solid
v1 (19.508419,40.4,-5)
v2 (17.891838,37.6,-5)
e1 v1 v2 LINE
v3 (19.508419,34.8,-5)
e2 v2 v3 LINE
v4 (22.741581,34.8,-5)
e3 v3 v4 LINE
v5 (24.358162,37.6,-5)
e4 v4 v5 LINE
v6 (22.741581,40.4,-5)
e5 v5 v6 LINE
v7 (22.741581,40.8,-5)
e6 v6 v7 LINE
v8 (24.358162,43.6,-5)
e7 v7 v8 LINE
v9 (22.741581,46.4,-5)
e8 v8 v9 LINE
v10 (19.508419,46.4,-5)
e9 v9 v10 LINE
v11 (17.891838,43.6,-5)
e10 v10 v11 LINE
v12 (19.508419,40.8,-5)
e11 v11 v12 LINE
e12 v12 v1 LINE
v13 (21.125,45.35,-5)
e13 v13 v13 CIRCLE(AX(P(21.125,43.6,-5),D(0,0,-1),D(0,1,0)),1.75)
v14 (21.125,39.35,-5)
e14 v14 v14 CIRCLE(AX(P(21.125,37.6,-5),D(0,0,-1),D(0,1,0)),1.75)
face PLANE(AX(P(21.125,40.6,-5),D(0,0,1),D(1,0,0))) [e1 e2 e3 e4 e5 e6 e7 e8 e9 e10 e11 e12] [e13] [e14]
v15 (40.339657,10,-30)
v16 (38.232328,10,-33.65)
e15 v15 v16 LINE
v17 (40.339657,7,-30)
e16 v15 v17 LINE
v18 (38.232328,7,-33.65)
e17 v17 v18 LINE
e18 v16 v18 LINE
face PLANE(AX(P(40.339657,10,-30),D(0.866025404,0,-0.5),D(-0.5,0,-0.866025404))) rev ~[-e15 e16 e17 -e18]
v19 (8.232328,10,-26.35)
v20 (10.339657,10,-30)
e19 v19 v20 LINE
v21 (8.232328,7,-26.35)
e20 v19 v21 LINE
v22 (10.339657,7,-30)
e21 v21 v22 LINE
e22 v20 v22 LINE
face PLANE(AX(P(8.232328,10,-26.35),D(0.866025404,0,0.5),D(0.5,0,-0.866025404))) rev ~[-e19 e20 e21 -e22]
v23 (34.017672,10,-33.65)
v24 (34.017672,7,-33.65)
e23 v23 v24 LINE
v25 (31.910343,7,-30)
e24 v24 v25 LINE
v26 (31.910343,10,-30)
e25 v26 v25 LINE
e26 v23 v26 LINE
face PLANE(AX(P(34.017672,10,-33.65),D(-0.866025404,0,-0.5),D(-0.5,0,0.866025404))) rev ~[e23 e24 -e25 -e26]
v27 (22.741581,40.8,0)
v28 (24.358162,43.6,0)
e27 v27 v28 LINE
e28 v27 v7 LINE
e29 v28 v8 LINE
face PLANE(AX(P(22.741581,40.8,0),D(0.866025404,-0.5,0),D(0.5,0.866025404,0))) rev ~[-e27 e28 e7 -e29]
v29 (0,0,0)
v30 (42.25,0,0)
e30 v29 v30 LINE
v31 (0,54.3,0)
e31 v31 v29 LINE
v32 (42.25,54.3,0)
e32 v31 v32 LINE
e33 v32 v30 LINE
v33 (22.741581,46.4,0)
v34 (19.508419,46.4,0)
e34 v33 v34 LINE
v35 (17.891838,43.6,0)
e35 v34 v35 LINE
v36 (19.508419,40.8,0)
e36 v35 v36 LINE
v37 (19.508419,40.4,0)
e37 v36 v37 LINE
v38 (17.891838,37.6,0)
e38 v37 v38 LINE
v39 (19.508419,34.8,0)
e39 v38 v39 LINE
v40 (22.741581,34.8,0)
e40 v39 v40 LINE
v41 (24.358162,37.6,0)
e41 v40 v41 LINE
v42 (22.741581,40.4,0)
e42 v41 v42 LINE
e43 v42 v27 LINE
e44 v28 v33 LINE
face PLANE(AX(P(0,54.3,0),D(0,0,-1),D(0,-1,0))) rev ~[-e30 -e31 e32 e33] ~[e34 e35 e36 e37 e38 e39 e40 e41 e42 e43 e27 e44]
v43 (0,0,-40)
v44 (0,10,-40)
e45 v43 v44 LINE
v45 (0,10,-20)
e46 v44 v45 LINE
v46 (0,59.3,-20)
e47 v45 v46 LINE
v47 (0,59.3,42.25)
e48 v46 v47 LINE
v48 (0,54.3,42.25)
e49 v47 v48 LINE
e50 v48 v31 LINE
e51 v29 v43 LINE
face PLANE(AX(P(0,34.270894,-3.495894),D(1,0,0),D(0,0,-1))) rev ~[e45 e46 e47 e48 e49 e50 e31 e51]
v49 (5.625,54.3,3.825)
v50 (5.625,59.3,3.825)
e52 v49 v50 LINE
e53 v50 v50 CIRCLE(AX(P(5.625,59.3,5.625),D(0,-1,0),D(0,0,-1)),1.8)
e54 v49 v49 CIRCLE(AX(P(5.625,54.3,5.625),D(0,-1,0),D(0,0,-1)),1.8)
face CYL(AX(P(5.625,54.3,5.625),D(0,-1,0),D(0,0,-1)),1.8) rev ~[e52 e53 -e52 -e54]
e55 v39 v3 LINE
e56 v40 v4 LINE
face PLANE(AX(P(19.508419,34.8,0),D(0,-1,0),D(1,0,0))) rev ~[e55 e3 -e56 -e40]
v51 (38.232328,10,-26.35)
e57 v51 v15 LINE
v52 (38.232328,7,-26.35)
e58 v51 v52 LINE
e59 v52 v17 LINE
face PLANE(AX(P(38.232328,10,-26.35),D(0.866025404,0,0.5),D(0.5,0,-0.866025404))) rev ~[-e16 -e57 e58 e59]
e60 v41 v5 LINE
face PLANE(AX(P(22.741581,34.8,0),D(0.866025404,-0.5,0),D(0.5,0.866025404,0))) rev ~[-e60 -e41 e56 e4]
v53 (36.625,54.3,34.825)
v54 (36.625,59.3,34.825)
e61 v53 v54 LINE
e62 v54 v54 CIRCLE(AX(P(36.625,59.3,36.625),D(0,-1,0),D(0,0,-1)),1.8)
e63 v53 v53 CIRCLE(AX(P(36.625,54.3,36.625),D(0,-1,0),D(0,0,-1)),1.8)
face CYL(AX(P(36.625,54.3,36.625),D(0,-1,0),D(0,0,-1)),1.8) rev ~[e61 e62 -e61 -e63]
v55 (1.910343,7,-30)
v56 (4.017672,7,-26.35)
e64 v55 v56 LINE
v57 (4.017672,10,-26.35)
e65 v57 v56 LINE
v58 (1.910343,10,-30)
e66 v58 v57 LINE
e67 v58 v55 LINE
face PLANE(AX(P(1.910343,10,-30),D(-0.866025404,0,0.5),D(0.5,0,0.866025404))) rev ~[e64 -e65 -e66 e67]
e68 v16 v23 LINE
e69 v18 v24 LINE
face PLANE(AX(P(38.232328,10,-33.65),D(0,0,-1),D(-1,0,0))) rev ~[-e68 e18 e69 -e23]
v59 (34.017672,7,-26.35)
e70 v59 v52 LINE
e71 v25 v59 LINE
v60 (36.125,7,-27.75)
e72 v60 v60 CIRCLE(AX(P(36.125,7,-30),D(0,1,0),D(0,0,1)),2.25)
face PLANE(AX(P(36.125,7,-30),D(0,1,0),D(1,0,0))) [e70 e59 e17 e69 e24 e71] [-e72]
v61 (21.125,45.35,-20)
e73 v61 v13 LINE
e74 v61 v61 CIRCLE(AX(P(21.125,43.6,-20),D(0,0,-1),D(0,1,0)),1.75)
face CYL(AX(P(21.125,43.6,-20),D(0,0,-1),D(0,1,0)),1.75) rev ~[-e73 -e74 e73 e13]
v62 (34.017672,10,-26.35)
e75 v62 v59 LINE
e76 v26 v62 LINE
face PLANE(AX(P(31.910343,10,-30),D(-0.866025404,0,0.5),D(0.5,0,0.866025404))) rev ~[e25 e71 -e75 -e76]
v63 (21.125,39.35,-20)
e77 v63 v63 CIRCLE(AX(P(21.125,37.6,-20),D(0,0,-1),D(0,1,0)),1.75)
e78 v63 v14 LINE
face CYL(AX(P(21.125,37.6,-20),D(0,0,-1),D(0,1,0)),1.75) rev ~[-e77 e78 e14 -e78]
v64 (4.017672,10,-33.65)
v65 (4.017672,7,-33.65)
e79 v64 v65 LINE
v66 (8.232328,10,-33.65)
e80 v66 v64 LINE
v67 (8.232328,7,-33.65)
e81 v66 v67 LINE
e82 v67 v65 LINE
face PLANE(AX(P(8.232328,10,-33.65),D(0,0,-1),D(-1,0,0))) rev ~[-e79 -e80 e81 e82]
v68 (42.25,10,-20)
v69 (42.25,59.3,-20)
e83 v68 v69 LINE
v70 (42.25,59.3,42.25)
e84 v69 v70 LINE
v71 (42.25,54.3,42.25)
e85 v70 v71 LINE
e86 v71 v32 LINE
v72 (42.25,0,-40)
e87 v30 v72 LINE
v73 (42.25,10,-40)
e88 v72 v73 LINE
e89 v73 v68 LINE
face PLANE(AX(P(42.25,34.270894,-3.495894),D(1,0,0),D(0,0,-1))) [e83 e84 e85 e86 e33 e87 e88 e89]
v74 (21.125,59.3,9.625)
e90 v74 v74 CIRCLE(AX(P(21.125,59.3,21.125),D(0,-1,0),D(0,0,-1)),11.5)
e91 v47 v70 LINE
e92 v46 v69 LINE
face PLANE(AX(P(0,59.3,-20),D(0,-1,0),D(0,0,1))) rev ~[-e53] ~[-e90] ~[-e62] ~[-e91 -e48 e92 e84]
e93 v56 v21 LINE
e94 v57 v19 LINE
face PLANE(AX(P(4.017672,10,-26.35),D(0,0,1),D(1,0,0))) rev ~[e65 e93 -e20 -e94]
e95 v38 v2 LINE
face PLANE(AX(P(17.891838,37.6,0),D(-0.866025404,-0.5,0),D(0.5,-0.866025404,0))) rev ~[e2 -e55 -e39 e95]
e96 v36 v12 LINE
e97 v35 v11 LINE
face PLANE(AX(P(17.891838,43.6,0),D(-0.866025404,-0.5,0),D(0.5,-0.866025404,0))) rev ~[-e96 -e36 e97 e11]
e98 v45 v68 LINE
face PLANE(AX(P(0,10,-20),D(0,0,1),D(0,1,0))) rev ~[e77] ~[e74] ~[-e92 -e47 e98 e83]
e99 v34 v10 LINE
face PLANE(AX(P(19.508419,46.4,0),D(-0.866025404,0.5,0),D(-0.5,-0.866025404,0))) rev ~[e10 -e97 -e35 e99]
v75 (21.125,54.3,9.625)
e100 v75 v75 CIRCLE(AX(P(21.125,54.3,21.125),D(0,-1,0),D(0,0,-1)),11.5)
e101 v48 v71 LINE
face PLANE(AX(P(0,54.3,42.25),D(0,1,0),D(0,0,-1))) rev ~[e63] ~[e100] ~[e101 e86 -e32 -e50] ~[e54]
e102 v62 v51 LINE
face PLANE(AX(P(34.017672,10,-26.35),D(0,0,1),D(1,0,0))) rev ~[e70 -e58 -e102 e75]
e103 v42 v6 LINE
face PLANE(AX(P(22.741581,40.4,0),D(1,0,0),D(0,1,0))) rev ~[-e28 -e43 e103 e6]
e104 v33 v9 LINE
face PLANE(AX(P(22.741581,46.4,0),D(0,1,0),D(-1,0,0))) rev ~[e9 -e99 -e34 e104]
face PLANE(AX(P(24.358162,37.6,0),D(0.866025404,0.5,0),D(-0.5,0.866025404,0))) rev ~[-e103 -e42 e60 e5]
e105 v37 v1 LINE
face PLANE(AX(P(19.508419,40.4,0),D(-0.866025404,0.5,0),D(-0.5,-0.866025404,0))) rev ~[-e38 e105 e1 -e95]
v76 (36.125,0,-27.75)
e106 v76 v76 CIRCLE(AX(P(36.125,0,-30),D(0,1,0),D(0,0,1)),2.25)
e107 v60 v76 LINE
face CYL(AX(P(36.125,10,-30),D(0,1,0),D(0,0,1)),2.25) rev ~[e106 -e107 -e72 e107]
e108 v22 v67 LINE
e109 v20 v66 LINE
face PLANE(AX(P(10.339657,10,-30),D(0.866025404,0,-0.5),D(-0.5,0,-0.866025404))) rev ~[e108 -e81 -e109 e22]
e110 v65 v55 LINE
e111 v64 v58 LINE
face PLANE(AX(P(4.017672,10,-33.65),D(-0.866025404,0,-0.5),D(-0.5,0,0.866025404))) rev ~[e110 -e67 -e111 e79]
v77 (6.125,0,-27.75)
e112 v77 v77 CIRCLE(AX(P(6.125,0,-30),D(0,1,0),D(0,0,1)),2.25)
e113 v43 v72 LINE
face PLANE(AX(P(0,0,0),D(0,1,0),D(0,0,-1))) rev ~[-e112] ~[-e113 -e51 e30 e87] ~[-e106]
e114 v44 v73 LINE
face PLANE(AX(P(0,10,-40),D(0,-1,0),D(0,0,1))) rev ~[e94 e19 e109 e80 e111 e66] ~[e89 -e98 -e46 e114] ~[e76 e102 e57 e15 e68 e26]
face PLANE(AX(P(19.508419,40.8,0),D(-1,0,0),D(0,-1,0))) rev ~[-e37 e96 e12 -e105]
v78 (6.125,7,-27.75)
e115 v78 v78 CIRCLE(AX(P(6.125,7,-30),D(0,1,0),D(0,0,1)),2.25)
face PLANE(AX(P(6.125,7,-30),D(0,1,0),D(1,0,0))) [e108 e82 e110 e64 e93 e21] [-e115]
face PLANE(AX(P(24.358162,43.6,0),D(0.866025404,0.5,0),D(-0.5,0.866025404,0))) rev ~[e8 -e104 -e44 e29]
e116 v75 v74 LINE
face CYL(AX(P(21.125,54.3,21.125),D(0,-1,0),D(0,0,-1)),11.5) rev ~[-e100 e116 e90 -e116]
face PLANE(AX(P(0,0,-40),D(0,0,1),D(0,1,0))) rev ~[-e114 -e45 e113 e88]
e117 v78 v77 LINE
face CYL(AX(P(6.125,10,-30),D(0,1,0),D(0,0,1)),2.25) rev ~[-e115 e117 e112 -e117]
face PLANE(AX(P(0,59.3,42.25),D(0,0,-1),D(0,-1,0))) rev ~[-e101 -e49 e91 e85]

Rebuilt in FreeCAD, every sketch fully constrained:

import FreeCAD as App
import Part
import Sketcher

V = App.Vector
Q = App.Units.Quantity


def add_polygon(sketch, points):
    """Adds a closed chain of lines whose ends are joined by coincident constraints."""
    first, n = sketch.GeometryCount, len(points)
    for a, b in zip(points, points[1:] + points[:1]):
        sketch.addGeometry(Part.LineSegment(App.Vector(*a, 0), App.Vector(*b, 0)), False)
    for i in range(n):
        sketch.addConstraint(Sketcher.Constraint("Coincident", first + i, 2, first + (i + 1) % n, 1))

doc = App.newDocument("Part")
body = doc.addObject("PartDesign::Body", "Body")

# Sketch on YZ plane
sketch1 = body.newObject("Sketcher::SketchObject", "Sketch")
sketch1.AttachmentSupport = (doc.getObject("YZ_Plane"), [""])
sketch1.MapMode = "FlatFace"
add_polygon(sketch1, [(0, 0), (0, -40), (10, -40), (10, -20), (59, -20), (59, 42), (54, 42), (54, 0)])  # lines 0-7
sketch1.addConstraint([
    Sketcher.Constraint("Vertical", 0),
    Sketcher.Constraint("Horizontal", 1),
    Sketcher.Constraint("Vertical", 2),
    Sketcher.Constraint("Horizontal", 3),
    Sketcher.Constraint("Vertical", 4),
    Sketcher.Constraint("Horizontal", 5),
    Sketcher.Constraint("Vertical", 6),
    Sketcher.Constraint("Horizontal", 7),
    Sketcher.Constraint("Coincident", 7, 2, -1, 1),
    Sketcher.Constraint("DistanceX", 1, 1, 1, 2, 10.0),
    Sketcher.Constraint("DistanceX", 5, 2, 5, 1, 5.0),
    Sketcher.Constraint("DistanceY", 0, 2, 0, 1, 40.0),
    Sketcher.Constraint("DistanceY", 2, 1, 2, 2, 20.0),
    Sketcher.Constraint("DistanceX", 3, 1, 3, 2, 49.3),
    Sketcher.Constraint("DistanceY", 4, 1, 4, 2, 62.25),
])
pad1 = body.newObject("PartDesign::Pad", "Pad")
pad1.Profile = sketch1
pad1.Length = 42.25

# Sketch on XZ plane
sketch2 = body.newObject("Sketcher::SketchObject", "Sketch001")
sketch2.AttachmentSupport = (doc.getObject("XZ_Plane"), [""])
sketch2.MapMode = "FlatFace"
sketch2.AttachmentOffset = App.Placement(V(0, 0, -10), App.Rotation())
sketch2.addGeometry([
    Part.Circle(V(6.1, -30, 0), V(0, 0, 1), 2.2),
    Part.Circle(V(36.1, -30, 0), V(0, 0, 1), 2.2),
], False)
sketch2.addConstraint([
    Sketcher.Constraint("Equal", 0, 1),
    Sketcher.Constraint("Horizontal", 0, 3, 1, 3),
    Sketcher.Constraint("Diameter", 0, 4.5),
    Sketcher.Constraint("DistanceY", 0, 3, -1, 1, 30.0),
    Sketcher.Constraint("DistanceX", 0, 3, 1, 3, 30.0),
    Sketcher.Constraint("DistanceX", -1, 1, 0, 3, 6.125),
])
pocket1 = body.newObject("PartDesign::Pocket", "Pocket")
pocket1.Profile = sketch2
pocket1.Type = "ThroughAll"
pocket1.Reversed = True

# Sketch on XZ plane
sketch3 = body.newObject("Sketcher::SketchObject", "Sketch002")
sketch3.AttachmentSupport = (doc.getObject("XZ_Plane"), [""])
sketch3.MapMode = "FlatFace"
sketch3.AttachmentOffset = App.Placement(V(0, 0, -54.3), App.Rotation())
sketch3.addGeometry([
    Part.Circle(V(21.1, 21.1, 0), V(0, 0, 1), 11.5),
    Part.Circle(V(5.6, 5.6, 0), V(0, 0, 1), 1.8),
    Part.Circle(V(36.6, 36.6, 0), V(0, 0, 1), 1.8),
], False)
sketch3.addConstraint([
    Sketcher.Constraint("Equal", 1, 2),
    Sketcher.Constraint("Diameter", 0, 23.0),
    Sketcher.Constraint("Diameter", 1, 3.6),
    Sketcher.Constraint("DistanceX", 1, 3, 2, 3, 31.0),
    Sketcher.Constraint("DistanceY", 1, 3, 2, 3, 31.0),
    Sketcher.Constraint("DistanceX", 1, 3, 0, 3, 15.5),
    Sketcher.Constraint("DistanceY", 1, 3, 0, 3, 15.5),
    Sketcher.Constraint("DistanceX", -1, 1, 0, 3, 21.125),
    Sketcher.Constraint("DistanceY", -1, 1, 0, 3, 21.125),
])
pocket2 = body.newObject("PartDesign::Pocket", "Pocket001")
pocket2.Profile = sketch3
pocket2.Type = "ThroughAll"

# Sketch on XY plane
sketch4 = body.newObject("Sketcher::SketchObject", "Sketch003")
sketch4.AttachmentSupport = (doc.getObject("XY_Plane"), [""])
sketch4.MapMode = "FlatFace"
sketch4.AttachmentOffset = App.Placement(V(0, 0, -20), App.Rotation())
sketch4.addGeometry([
    Part.Circle(V(21.1, 43.6, 0), V(0, 0, 1), 1.8),
    Part.Circle(V(21.1, 37.6, 0), V(0, 0, 1), 1.8),
], False)
sketch4.addConstraint([
    Sketcher.Constraint("Equal", 0, 1),
    Sketcher.Constraint("Vertical", 0, 3, 1, 3),
    Sketcher.Constraint("Diameter", 0, 3.5),
    Sketcher.Constraint("DistanceY", 1, 3, 0, 3, 6.0),
    Sketcher.Constraint("DistanceY", -1, 1, 0, 3, 43.6),
    Sketcher.Constraint("DistanceX", -1, 1, 0, 3, 21.125),
])
pocket3 = body.newObject("PartDesign::Pocket", "Pocket002")
pocket3.Profile = sketch4
pocket3.Type = "ThroughAll"
pocket3.Reversed = True

# Sketch on XY plane
sketch5 = body.newObject("Sketcher::SketchObject", "Sketch004")
sketch5.AttachmentSupport = (doc.getObject("XY_Plane"), [""])
sketch5.MapMode = "FlatFace"
add_polygon(sketch5, [(19.51, 40.8), (19.51, 40.4), (17.89, 37.6), (19.51, 34.8), (22.74, 34.8), (24.36, 37.6), (22.74, 40.4), (22.74, 40.8), (24.36, 43.6), (22.74, 46.4), (19.51, 46.4), (17.89, 43.6)])  # lines 0-11
sketch5.addConstraint([
    Sketcher.Constraint("Vertical", 0),
    Sketcher.Constraint("Horizontal", 3),
    Sketcher.Constraint("Vertical", 6),
    Sketcher.Constraint("Horizontal", 9),
    Sketcher.Constraint("Parallel", 1, 4),
    Sketcher.Constraint("Parallel", 2, 5),
    Sketcher.Constraint("Parallel", 4, 7),
    Sketcher.Constraint("Parallel", 5, 8),
    Sketcher.Constraint("Parallel", 7, 10),
    Sketcher.Constraint("Parallel", 8, 11),
    Sketcher.Constraint("Horizontal", 1, 2, 4, 2),
    Sketcher.Constraint("Horizontal", 0, 2, 5, 2),
    Sketcher.Constraint("Horizontal", 7, 2, 10, 2),
    Sketcher.Constraint("Horizontal", 6, 2, 11, 2),
    Sketcher.Constraint("Vertical", 0, 2, 2, 2),
    Sketcher.Constraint("Vertical", 3, 2, 5, 2),
    Sketcher.Constraint("Vertical", 4, 2, 7, 2),
    Sketcher.Constraint("Vertical", 6, 2, 8, 2),
    Sketcher.Constraint("Angle", 1, Q("-120 deg")),
    Sketcher.Constraint("DistanceY", 0, 2, 0, 1, 0.4),
    Sketcher.Constraint("DistanceY", 3, 2, 6, 2, 6.0),
    Sketcher.Constraint("DistanceY", -1, 1, 0, 2, 40.4),
    Sketcher.Constraint("DistanceX", 3, 1, 3, 2, 3.233162),
    Sketcher.Constraint("DistanceX", -1, 1, 0, 2, 19.508419),
])
pocket4 = body.newObject("PartDesign::Pocket", "Pocket003")
pocket4.Profile = sketch5
pocket4.Length = 5

# Sketch on XZ plane
sketch6 = body.newObject("Sketcher::SketchObject", "Sketch005")
sketch6.AttachmentSupport = (doc.getObject("XZ_Plane"), [""])
sketch6.MapMode = "FlatFace"
sketch6.AttachmentOffset = App.Placement(V(0, 0, -10), App.Rotation())
add_polygon(sketch6, [(10.3, -30), (8.2, -33.6), (4, -33.6), (1.9, -30), (4, -26.4), (8.2, -26.4)])  # lines 0-5
add_polygon(sketch6, [(40.3, -30), (38.2, -33.6), (34, -33.6), (31.9, -30), (34, -26.4), (38.2, -26.4)])  # lines 6-11
sketch6.addConstraint([
    Sketcher.Constraint("Horizontal", 1),
    Sketcher.Constraint("Horizontal", 4),
    Sketcher.Constraint("Horizontal", 7),
    Sketcher.Constraint("Horizontal", 10),
    Sketcher.Constraint("Parallel", 0, 3),
    Sketcher.Constraint("Parallel", 2, 5),
    Sketcher.Constraint("Parallel", 3, 6),
    Sketcher.Constraint("Parallel", 5, 8),
    Sketcher.Constraint("Parallel", 6, 9),
    Sketcher.Constraint("Parallel", 8, 11),
    Sketcher.Constraint("Horizontal", 2, 2, 5, 2),
    Sketcher.Constraint("Horizontal", 1, 2, 6, 2),
    Sketcher.Constraint("Horizontal", 5, 2, 8, 2),
    Sketcher.Constraint("Horizontal", 4, 2, 9, 2),
    Sketcher.Constraint("Horizontal", 8, 2, 11, 2),
    Sketcher.Constraint("Vertical", 1, 2, 3, 2),
    Sketcher.Constraint("Vertical", 0, 2, 4, 2),
    Sketcher.Constraint("Equal", 4, 7),
    Sketcher.Constraint("Angle", 0, Q("-120 deg")),
    Sketcher.Constraint("DistanceY", 2, 2, -1, 1, 30.0),
    Sketcher.Constraint("DistanceX", 0, 2, 6, 2, 30.0),
    Sketcher.Constraint("DistanceY", 1, 2, 3, 2, 7.3),
    Sketcher.Constraint("DistanceX", 1, 2, 1, 1, 4.214657),
    Sketcher.Constraint("DistanceX", -1, 1, 0, 2, 8.232328),
])
pocket5 = body.newObject("PartDesign::Pocket", "Pocket004")
pocket5.Profile = sketch6
pocket5.Length = 3
pocket5.Reversed = True

doc.recompute()
